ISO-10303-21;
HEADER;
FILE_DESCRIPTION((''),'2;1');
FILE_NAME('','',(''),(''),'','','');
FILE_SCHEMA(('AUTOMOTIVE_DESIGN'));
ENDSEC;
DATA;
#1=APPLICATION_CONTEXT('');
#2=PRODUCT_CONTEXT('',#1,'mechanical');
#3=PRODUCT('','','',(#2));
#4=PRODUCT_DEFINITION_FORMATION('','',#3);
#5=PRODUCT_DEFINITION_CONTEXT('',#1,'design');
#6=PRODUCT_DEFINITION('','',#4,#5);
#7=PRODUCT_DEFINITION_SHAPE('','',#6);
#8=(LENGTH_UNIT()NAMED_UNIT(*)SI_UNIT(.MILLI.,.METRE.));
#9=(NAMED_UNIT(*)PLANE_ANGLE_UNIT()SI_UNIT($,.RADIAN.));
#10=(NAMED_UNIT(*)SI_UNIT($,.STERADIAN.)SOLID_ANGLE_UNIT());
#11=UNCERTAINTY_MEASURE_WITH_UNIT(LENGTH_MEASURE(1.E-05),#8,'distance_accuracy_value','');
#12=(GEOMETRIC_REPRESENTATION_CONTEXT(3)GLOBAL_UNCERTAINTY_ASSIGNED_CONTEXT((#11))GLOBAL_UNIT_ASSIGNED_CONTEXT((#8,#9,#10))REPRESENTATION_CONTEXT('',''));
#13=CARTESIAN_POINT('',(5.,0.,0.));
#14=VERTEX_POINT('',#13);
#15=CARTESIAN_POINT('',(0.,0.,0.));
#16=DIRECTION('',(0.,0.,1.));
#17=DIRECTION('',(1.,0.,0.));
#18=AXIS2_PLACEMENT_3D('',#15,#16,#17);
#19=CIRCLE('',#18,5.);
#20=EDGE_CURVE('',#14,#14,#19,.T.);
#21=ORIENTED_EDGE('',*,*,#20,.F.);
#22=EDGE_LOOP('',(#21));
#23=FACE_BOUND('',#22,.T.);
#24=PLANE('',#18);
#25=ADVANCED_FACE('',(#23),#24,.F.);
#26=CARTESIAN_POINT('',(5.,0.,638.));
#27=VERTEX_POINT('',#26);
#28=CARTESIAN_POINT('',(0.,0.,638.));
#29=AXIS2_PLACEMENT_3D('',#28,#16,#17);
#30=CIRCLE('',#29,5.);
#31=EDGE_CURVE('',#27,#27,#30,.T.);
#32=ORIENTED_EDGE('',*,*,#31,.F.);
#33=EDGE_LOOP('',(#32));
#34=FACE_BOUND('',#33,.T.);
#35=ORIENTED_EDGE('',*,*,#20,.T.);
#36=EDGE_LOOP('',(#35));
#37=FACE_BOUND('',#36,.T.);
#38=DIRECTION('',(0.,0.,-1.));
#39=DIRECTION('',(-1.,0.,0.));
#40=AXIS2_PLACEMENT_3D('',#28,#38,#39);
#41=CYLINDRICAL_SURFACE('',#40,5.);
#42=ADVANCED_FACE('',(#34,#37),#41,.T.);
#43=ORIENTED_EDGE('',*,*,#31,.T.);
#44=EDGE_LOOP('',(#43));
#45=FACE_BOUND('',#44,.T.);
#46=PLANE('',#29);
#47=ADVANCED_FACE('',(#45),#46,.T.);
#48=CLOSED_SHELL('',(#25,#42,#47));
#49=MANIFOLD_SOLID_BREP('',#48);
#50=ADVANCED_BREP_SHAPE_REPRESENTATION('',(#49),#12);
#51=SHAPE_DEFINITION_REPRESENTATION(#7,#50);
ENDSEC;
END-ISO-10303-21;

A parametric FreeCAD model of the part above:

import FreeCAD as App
import Part
import Sketcher

V = App.Vector

doc = App.newDocument("Part")
body = doc.addObject("PartDesign::Body", "Body")

# Sketch on XY plane
sketch1 = doc.addObject("Sketcher::SketchObject", "Sketch")
body.addObject(sketch1)
sketch1.AttachmentSupport = (doc.XY_Plane, [""])
sketch1.MapMode = "FlatFace"
sketch1.addGeometry(Part.Circle(V(0, 0, 0), V(0, 0, 1), 5), False)
sketch1.addConstraint(Sketcher.Constraint("Coincident", 0, 3, -1, 1))
sketch1.addConstraint(Sketcher.Constraint("Diameter", 0, 10.0))
pad1 = doc.addObject("PartDesign::Pad", "Pad")
body.addObject(pad1)
pad1.Profile = sketch1
pad1.Length = 638

doc.recompute()
